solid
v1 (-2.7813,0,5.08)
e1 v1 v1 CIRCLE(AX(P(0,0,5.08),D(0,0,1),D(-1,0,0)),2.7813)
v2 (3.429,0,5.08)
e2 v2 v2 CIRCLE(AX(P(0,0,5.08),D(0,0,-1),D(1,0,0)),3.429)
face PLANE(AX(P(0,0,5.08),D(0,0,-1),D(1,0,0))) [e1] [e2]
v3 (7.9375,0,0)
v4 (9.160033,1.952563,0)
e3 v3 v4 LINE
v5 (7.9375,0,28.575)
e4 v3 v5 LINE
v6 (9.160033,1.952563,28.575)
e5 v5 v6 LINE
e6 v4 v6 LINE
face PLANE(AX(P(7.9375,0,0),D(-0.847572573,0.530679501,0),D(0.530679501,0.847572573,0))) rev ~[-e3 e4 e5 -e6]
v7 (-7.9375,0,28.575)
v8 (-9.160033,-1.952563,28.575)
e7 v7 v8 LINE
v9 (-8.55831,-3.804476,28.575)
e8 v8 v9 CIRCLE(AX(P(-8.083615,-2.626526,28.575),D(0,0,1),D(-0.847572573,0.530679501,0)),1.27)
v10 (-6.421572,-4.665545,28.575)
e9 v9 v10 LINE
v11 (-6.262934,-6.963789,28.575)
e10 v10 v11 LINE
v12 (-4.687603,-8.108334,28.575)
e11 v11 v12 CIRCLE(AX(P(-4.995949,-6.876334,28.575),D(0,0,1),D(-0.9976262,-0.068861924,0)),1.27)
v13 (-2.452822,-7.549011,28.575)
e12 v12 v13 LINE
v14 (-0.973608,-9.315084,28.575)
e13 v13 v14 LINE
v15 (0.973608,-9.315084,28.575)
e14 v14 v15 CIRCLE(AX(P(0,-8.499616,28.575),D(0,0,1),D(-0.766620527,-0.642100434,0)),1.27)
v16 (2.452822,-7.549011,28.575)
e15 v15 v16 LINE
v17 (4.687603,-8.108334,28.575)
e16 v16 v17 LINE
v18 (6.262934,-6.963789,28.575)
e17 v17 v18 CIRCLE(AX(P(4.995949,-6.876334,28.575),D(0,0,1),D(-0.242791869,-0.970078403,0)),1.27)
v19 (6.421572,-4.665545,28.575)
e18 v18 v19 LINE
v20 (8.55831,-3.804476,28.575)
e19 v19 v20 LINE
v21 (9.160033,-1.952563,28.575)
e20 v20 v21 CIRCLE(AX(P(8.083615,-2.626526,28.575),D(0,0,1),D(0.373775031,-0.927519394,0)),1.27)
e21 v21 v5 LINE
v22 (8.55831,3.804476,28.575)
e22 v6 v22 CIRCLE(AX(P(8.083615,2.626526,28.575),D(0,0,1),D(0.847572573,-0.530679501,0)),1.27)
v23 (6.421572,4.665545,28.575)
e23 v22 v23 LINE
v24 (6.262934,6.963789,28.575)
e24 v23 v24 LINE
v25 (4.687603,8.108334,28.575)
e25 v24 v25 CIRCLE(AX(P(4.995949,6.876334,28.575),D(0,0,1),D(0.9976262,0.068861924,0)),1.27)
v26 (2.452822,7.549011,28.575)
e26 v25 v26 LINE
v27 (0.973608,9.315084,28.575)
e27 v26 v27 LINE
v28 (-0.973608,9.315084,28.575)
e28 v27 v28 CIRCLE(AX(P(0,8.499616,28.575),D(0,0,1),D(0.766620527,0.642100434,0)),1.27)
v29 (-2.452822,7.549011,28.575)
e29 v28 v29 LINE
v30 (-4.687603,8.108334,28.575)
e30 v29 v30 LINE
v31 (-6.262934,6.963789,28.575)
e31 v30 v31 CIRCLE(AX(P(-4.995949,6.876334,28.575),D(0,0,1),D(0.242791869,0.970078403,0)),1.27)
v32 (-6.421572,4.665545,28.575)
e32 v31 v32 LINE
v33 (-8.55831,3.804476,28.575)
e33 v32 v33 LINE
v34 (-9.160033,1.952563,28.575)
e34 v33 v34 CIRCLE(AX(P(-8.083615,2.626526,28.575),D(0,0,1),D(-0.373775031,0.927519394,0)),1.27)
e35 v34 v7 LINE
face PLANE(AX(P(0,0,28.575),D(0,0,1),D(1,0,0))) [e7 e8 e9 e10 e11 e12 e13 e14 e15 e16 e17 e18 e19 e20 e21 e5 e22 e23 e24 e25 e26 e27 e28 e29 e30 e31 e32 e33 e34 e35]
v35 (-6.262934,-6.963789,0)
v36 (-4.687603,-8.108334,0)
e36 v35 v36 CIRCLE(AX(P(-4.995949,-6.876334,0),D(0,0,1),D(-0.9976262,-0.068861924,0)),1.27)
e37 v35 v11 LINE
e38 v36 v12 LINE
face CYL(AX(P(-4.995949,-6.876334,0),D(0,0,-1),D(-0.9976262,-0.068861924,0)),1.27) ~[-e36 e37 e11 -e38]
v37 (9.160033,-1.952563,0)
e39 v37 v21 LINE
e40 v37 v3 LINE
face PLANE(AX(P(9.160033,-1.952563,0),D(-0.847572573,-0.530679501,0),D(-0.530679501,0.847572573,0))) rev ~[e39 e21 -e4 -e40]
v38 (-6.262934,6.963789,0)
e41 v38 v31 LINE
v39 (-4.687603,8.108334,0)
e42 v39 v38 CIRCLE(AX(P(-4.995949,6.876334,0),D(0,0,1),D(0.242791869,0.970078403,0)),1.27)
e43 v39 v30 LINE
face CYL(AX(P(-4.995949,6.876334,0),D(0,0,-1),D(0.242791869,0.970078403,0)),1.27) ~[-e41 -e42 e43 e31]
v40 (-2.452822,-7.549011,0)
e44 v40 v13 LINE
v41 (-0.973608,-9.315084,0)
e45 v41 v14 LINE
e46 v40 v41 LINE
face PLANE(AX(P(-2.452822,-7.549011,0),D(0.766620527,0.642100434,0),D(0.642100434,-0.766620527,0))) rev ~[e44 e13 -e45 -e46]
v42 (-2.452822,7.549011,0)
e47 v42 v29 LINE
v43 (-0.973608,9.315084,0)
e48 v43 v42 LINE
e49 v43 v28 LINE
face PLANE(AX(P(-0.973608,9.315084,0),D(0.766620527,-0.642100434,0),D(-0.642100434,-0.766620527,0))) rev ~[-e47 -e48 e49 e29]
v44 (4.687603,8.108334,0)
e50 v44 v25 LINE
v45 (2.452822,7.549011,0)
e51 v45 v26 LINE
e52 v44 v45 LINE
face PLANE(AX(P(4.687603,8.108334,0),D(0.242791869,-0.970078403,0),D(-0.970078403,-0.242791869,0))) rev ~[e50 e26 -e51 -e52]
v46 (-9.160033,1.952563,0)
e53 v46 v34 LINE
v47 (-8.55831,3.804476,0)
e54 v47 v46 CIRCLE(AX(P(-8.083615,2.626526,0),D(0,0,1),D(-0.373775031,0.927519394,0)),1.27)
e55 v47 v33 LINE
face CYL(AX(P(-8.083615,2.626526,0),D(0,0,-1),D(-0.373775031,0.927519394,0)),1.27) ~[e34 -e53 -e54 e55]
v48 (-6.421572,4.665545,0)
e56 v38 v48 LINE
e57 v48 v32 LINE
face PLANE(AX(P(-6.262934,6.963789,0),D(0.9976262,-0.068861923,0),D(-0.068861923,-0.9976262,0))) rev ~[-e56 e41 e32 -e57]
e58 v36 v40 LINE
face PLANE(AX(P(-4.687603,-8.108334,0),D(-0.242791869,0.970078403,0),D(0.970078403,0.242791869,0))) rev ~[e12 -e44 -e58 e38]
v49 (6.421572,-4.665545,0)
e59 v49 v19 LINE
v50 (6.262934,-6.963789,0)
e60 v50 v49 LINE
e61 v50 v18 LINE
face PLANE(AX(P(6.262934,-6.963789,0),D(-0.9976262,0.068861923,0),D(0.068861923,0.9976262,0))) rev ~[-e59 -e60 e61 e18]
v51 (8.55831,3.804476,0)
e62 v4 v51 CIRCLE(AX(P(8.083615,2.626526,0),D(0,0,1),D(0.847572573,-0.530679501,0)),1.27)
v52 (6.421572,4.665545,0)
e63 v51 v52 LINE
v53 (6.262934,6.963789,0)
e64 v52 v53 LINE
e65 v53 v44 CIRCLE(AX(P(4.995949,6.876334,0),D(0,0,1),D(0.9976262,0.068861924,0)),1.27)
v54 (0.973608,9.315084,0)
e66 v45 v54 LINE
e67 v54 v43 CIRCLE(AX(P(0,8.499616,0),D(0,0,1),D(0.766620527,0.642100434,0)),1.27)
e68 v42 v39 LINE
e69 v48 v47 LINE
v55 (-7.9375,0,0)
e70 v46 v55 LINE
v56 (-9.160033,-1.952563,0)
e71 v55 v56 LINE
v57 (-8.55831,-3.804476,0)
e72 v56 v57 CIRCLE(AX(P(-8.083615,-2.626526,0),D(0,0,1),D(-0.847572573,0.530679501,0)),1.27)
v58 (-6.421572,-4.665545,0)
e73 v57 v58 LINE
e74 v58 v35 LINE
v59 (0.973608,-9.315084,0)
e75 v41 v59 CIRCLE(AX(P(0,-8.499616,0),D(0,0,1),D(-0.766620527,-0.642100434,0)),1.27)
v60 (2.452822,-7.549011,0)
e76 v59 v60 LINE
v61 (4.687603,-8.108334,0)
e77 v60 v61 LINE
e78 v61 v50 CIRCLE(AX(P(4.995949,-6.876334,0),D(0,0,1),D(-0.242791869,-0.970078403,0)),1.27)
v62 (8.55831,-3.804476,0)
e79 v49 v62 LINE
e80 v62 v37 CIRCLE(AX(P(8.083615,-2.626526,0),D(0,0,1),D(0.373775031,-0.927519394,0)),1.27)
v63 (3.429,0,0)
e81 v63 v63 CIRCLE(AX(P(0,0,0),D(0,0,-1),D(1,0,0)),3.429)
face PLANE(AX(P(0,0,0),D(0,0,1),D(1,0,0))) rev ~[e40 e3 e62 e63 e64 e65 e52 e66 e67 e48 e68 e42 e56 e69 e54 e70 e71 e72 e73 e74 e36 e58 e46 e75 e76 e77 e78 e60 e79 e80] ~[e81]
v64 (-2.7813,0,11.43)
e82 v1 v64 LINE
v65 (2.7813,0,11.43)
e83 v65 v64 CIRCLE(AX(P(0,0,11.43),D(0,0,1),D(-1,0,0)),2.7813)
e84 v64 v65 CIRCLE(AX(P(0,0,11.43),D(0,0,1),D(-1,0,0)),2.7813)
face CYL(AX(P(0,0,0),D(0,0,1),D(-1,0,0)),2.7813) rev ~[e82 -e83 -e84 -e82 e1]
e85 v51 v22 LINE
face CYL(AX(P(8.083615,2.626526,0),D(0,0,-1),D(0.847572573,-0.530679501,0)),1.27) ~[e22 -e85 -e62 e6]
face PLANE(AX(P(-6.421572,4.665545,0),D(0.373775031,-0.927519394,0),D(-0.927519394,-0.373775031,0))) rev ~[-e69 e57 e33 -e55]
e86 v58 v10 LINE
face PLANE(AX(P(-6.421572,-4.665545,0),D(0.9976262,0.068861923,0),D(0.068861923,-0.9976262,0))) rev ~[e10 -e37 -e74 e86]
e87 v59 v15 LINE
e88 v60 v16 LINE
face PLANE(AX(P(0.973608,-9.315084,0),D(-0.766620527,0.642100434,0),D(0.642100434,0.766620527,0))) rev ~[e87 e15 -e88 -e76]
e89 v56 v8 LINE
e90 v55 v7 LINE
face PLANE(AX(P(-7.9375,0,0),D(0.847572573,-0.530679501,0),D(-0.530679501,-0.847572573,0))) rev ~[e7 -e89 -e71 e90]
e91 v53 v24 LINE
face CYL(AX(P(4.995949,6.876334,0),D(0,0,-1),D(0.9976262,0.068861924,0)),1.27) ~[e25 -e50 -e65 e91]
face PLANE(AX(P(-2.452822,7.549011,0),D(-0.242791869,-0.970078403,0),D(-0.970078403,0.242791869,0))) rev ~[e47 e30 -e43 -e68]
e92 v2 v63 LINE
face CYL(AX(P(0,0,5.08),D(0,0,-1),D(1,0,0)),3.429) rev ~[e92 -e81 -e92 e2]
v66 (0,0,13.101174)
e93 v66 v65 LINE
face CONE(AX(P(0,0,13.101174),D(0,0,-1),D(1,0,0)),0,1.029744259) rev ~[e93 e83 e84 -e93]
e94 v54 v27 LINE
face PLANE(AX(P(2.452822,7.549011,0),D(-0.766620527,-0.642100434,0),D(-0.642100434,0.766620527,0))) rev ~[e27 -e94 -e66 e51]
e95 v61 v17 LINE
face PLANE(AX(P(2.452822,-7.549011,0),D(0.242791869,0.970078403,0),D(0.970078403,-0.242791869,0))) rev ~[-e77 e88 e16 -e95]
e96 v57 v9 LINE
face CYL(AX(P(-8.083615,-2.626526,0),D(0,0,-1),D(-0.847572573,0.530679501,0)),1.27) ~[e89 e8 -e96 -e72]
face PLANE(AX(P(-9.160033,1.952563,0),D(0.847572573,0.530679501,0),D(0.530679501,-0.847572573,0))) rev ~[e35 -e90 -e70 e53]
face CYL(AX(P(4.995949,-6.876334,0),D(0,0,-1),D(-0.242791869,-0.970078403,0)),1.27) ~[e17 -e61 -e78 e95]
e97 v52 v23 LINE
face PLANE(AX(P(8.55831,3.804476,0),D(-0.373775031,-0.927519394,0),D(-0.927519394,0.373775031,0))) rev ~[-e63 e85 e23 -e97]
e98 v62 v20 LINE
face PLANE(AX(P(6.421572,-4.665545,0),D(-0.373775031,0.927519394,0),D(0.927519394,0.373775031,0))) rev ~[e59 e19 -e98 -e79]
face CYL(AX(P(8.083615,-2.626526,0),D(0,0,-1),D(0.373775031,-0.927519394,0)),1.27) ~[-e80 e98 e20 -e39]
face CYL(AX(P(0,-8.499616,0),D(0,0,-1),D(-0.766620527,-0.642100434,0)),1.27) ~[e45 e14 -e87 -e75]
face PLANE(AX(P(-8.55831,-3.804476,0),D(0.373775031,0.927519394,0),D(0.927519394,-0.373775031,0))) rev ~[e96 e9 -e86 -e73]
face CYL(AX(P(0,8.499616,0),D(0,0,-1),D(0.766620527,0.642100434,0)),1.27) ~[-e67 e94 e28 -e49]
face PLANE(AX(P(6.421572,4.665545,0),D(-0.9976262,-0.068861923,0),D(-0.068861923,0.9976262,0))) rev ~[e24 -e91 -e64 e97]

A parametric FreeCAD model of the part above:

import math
import FreeCAD as App
import Part
import Sketcher
from FreeCAD import Vector
Q = App.Units.Quantity

doc = App.newDocument("Part")
body = doc.addObject("PartDesign::Body", "Body")

sketch1 = body.newObject("Sketcher::SketchObject", "Sketch")
sketch1.AttachmentSupport = (doc.getObject("XY_Plane"), [""])
sketch1.MapMode = "FlatFace"
sketch1.addGeometry(Part.LineSegment(Vector(2.5, 7.5, 0), Vector(1, 9.3, 0)), False)
sketch1.addGeometry(Part.ArcOfCircle(Part.Circle(Vector(0, 8.5, 0), Vector(0, 0, 1), 1.3), math.radians(40), math.radians(140)), False)
sketch1.addGeometry(Part.LineSegment(Vector(-1, 9.3, 0), Vector(-2.5, 7.5, 0)), False)
sketch1.addGeometry(Part.LineSegment(Vector(-2.5, 7.5, 0), Vector(-4.7, 8.1, 0)), False)
sketch1.addGeometry(Part.ArcOfCircle(Part.Circle(Vector(-5, 6.9, 0), Vector(0, 0, 1), 1.3), math.radians(76), math.radians(176)), False)
sketch1.addGeometry(Part.LineSegment(Vector(-6.3, 7, 0), Vector(-6.4, 4.7, 0)), False)
sketch1.addGeometry(Part.LineSegment(Vector(-6.4, 4.7, 0), Vector(-8.6, 3.8, 0)), False)
sketch1.addGeometry(Part.ArcOfCircle(Part.Circle(Vector(-8.1, 2.6, 0), Vector(0, 0, 1), 1.3), math.radians(112), math.radians(212)), False)
sketch1.addGeometry(Part.LineSegment(Vector(-9.2, 2, 0), Vector(-7.9, 0, 0)), False)
sketch1.addGeometry(Part.LineSegment(Vector(-7.9, 0, 0), Vector(-9.2, -2, 0)), False)
sketch1.addGeometry(Part.ArcOfCircle(Part.Circle(Vector(-8.1, -2.6, 0), Vector(0, 0, 1), 1.3), math.radians(148), math.radians(248)), False)
sketch1.addGeometry(Part.LineSegment(Vector(-8.6, -3.8, 0), Vector(-6.4, -4.7, 0)), False)
sketch1.addGeometry(Part.LineSegment(Vector(-6.4, -4.7, 0), Vector(-6.3, -7, 0)), False)
sketch1.addGeometry(Part.ArcOfCircle(Part.Circle(Vector(-5, -6.9, 0), Vector(0, 0, 1), 1.3), math.radians(-176), math.radians(-76)), False)
sketch1.addGeometry(Part.LineSegment(Vector(-4.7, -8.1, 0), Vector(-2.5, -7.5, 0)), False)
sketch1.addGeometry(Part.LineSegment(Vector(-2.5, -7.5, 0), Vector(-1, -9.3, 0)), False)
sketch1.addGeometry(Part.ArcOfCircle(Part.Circle(Vector(0, -8.5, 0), Vector(0, 0, 1), 1.3), math.radians(-140), math.radians(-40)), False)
sketch1.addGeometry(Part.LineSegment(Vector(1, -9.3, 0), Vector(2.5, -7.5, 0)), False)
sketch1.addGeometry(Part.LineSegment(Vector(2.5, -7.5, 0), Vector(4.7, -8.1, 0)), False)
sketch1.addGeometry(Part.ArcOfCircle(Part.Circle(Vector(5, -6.9, 0), Vector(0, 0, 1), 1.3), math.radians(-104), math.radians(-4)), False)
sketch1.addGeometry(Part.LineSegment(Vector(6.3, -7, 0), Vector(6.4, -4.7, 0)), False)
sketch1.addGeometry(Part.LineSegment(Vector(6.4, -4.7, 0), Vector(8.6, -3.8, 0)), False)
sketch1.addGeometry(Part.ArcOfCircle(Part.Circle(Vector(8.1, -2.6, 0), Vector(0, 0, 1), 1.3), math.radians(-68), math.radians(32)), False)
sketch1.addGeometry(Part.LineSegment(Vector(9.2, -2, 0), Vector(7.9, 0, 0)), False)
sketch1.addGeometry(Part.LineSegment(Vector(7.9, 0, 0), Vector(9.2, 2, 0)), False)
sketch1.addGeometry(Part.ArcOfCircle(Part.Circle(Vector(8.1, 2.6, 0), Vector(0, 0, 1), 1.3), math.radians(-32), math.radians(68)), False)
sketch1.addGeometry(Part.LineSegment(Vector(8.6, 3.8, 0), Vector(6.4, 4.7, 0)), False)
sketch1.addGeometry(Part.LineSegment(Vector(6.4, 4.7, 0), Vector(6.3, 7, 0)), False)
sketch1.addGeometry(Part.ArcOfCircle(Part.Circle(Vector(5, 6.9, 0), Vector(0, 0, 1), 1.3), math.radians(4), math.radians(104)), False)
sketch1.addGeometry(Part.LineSegment(Vector(4.7, 8.1, 0), Vector(2.5, 7.5, 0)), False)
sketch1.addConstraint(Sketcher.Constraint("Tangent", 0, 2, 1, 1))
sketch1.addConstraint(Sketcher.Constraint("Tangent", 1, 2, 2, 1))
sketch1.addConstraint(Sketcher.Constraint("Coincident", 2, 2, 3, 1))
sketch1.addConstraint(Sketcher.Constraint("Tangent", 3, 2, 4, 1))
sketch1.addConstraint(Sketcher.Constraint("Tangent", 4, 2, 5, 1))
sketch1.addConstraint(Sketcher.Constraint("Coincident", 5, 2, 6, 1))
sketch1.addConstraint(Sketcher.Constraint("Tangent", 6, 2, 7, 1))
sketch1.addConstraint(Sketcher.Constraint("Tangent", 7, 2, 8, 1))
sketch1.addConstraint(Sketcher.Constraint("Coincident", 8, 2, 9, 1))
sketch1.addConstraint(Sketcher.Constraint("Tangent", 9, 2, 10, 1))
sketch1.addConstraint(Sketcher.Constraint("Tangent", 10, 2, 11, 1))
sketch1.addConstraint(Sketcher.Constraint("Coincident", 11, 2, 12, 1))
sketch1.addConstraint(Sketcher.Constraint("Tangent", 12, 2, 13, 1))
sketch1.addConstraint(Sketcher.Constraint("Tangent", 13, 2, 14, 1))
sketch1.addConstraint(Sketcher.Constraint("Coincident", 14, 2, 15, 1))
sketch1.addConstraint(Sketcher.Constraint("Tangent", 15, 2, 16, 1))
sketch1.addConstraint(Sketcher.Constraint("Tangent", 16, 2, 17, 1))
sketch1.addConstraint(Sketcher.Constraint("Coincident", 17, 2, 18, 1))
sketch1.addConstraint(Sketcher.Constraint("Tangent", 18, 2, 19, 1))
sketch1.addConstraint(Sketcher.Constraint("Tangent", 19, 2, 20, 1))
sketch1.addConstraint(Sketcher.Constraint("Coincident", 20, 2, 21, 1))
sketch1.addConstraint(Sketcher.Constraint("Tangent", 21, 2, 22, 1))
sketch1.addConstraint(Sketcher.Constraint("Tangent", 22, 2, 23, 1))
sketch1.addConstraint(Sketcher.Constraint("Coincident", 23, 2, 24, 1))
sketch1.addConstraint(Sketcher.Constraint("Tangent", 24, 2, 25, 1))
sketch1.addConstraint(Sketcher.Constraint("Tangent", 25, 2, 26, 1))
sketch1.addConstraint(Sketcher.Constraint("Coincident", 26, 2, 27, 1))
sketch1.addConstraint(Sketcher.Constraint("Tangent", 27, 2, 28, 1))
sketch1.addConstraint(Sketcher.Constraint("Tangent", 28, 2, 29, 1))
sketch1.addConstraint(Sketcher.Constraint("Coincident", 29, 2, 0, 1))
sketch1.addConstraint(Sketcher.Constraint("Equal", 1, 4))
sketch1.addConstraint(Sketcher.Constraint("Equal", 4, 7))
sketch1.addConstraint(Sketcher.Constraint("Equal", 7, 10))
sketch1.addConstraint(Sketcher.Constraint("Equal", 10, 13))
sketch1.addConstraint(Sketcher.Constraint("Equal", 13, 16))
sketch1.addConstraint(Sketcher.Constraint("Equal", 16, 19))
sketch1.addConstraint(Sketcher.Constraint("Equal", 19, 22))
sketch1.addConstraint(Sketcher.Constraint("Equal", 22, 25))
sketch1.addConstraint(Sketcher.Constraint("Equal", 25, 28))
sketch1.addConstraint(Sketcher.Constraint("Symmetric", 1, 3, 16, 3, -1, 1))
sketch1.addConstraint(Sketcher.Constraint("Symmetric", 4, 3, 19, 3, -1, 1))
sketch1.addConstraint(Sketcher.Constraint("Symmetric", 7, 3, 22, 3, -1, 1))
sketch1.addConstraint(Sketcher.Constraint("Symmetric", 10, 3, 25, 3, -1, 1))
sketch1.addConstraint(Sketcher.Constraint("Symmetric", 13, 3, 28, 3, -1, 1))
sketch1.addConstraint(Sketcher.Constraint("Symmetric", 2, 2, 17, 2, -1, 1))
sketch1.addConstraint(Sketcher.Constraint("Symmetric", 5, 2, 20, 2, -1, 1))
sketch1.addConstraint(Sketcher.Constraint("Symmetric", 8, 2, 23, 2, -1, 1))
sketch1.addConstraint(Sketcher.Constraint("Symmetric", 11, 2, 26, 2, -1, 1))
sketch1.addConstraint(Sketcher.Constraint("Symmetric", 14, 2, 29, 2, -1, 1))
sketch1.addConstraint(Sketcher.Constraint("Symmetric", 13, 3, 19, 3, -2))
sketch1.addConstraint(Sketcher.Constraint("Symmetric", 10, 3, 22, 3, -2))
sketch1.addConstraint(Sketcher.Constraint("Symmetric", 0, 2, 1, 2, -2))
sketch1.addConstraint(Sketcher.Constraint("Symmetric", 11, 2, 20, 2, -2))
sketch1.addConstraint(Sketcher.Constraint("PointOnObject", 8, 2, -1))
sketch1.addConstraint(Sketcher.Constraint("Horizontal", 14, 2, 17, 2))
sketch1.addConstraint(Sketcher.Constraint("Equal", 2, 3))
sketch1.addConstraint(Sketcher.Constraint("Equal", 3, 5))
sketch1.addConstraint(Sketcher.Constraint("Equal", 5, 6))
sketch1.addConstraint(Sketcher.Constraint("Equal", 6, 8))
sketch1.addConstraint(Sketcher.Constraint("Radius", 1, Q("0.05 in")))
sketch1.addConstraint(Sketcher.Constraint("DistanceX", 8, 2, -1, 1, Q("0.3125 in")))
sketch1.addConstraint(Sketcher.Constraint("DistanceX", 5, 2, 2, 2, Q("0.15625 in")))
sketch1.addConstraint(Sketcher.Constraint("DistanceX", 13, 3, 19, 3, Q("9.991898 mm")))
sketch1.addConstraint(Sketcher.Constraint("DistanceY", 4, 3, 3, 2, Q("1.232 mm")))
sketch1.addConstraint(Sketcher.Constraint("DistanceX", 7, 2, 4, 2, Q("2.897098 mm")))
sketch1.addConstraint(Sketcher.Constraint("Distance", 0, Q("2.303712 mm")))
pad1 = body.newObject("PartDesign::Pad", "Pad")
pad1.Profile = sketch1
pad1.Length = Q("1.125 in")

sketch2 = body.newObject("Sketcher::SketchObject", "Sketch001")
sketch2.AttachmentSupport = (doc.getObject("XY_Plane"), [""])
sketch2.MapMode = "FlatFace"
sketch2.addGeometry(Part.Circle(Vector(0, 0, 0), Vector(0, 0, 1), 2.8), False)
sketch2.addConstraint(Sketcher.Constraint("Coincident", 0, 3, -1, 1))
sketch2.addConstraint(Sketcher.Constraint("Diameter", 0, Q("0.219 in")))
doc.recompute()
hole = body.newObject("PartDesign::Hole", "Hole")
hole.Profile = sketch2
hole.ThreadType = "None"
hole.Diameter = Q("0.219 in")
hole.DepthType = "Dimension"
hole.Depth = Q("0.45 in")
hole.DrillPoint = "Angled"
hole.DrillPointAngle = 118
hole.HoleCutType = "Counterbore"
hole.HoleCutDiameter = Q("0.27 in")
hole.HoleCutDepth = Q("0.2 in")
hole.Reversed = True

doc.recompute()
